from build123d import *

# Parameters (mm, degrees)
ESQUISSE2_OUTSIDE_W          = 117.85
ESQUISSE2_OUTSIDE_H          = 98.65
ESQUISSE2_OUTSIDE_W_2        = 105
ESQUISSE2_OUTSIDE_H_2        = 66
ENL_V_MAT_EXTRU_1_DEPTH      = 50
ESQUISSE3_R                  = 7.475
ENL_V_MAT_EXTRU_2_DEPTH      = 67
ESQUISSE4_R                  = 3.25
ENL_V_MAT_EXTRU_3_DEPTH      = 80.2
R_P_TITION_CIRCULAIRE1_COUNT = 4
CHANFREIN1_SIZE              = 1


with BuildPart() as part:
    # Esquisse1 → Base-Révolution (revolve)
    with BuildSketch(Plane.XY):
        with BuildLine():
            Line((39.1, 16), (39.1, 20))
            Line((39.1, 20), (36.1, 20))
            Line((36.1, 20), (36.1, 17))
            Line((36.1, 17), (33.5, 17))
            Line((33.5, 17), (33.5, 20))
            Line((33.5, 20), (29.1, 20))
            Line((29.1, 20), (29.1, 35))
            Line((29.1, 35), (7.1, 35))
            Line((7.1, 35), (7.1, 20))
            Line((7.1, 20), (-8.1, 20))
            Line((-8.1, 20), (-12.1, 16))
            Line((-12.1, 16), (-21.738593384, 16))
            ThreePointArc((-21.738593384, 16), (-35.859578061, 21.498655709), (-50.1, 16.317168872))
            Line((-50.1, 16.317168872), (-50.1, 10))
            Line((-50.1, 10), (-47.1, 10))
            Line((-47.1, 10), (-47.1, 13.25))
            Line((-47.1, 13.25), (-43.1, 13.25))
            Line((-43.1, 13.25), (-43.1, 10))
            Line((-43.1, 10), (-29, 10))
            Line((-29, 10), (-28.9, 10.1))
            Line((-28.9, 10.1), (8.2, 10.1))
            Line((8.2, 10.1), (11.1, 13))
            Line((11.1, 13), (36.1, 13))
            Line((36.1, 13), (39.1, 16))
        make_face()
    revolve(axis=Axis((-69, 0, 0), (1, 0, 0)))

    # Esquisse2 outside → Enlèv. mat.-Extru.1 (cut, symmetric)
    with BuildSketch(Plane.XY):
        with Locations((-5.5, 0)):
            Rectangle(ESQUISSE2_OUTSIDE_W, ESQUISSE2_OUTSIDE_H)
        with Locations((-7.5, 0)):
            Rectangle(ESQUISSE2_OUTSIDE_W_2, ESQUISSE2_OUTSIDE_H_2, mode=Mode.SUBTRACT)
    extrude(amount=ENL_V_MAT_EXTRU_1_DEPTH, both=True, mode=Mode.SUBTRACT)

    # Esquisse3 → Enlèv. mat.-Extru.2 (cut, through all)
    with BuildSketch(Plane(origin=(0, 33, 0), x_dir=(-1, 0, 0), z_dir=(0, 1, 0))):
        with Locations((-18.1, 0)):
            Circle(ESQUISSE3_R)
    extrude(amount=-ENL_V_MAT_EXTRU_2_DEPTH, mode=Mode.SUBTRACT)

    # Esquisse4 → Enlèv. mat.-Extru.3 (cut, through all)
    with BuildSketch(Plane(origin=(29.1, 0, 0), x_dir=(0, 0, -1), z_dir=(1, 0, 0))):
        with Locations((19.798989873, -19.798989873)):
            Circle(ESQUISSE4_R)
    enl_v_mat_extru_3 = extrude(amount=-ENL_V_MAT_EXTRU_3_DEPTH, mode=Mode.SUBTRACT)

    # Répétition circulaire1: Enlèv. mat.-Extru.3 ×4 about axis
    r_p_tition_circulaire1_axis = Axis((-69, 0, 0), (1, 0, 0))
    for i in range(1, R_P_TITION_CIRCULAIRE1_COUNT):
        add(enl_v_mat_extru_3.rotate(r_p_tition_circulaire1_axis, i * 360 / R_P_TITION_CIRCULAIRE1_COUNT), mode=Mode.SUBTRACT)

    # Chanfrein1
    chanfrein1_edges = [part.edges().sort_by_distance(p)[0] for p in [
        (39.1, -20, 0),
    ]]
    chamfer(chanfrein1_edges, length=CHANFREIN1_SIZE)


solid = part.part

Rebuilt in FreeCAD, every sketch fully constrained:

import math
import FreeCAD as App
import Part
import Sketcher
from FreeCAD import Vector
Q = App.Units.Quantity


def edges_at(feature, points):
    """Names of the edges that pass closest to the given points."""
    edges = feature.Shape.Edges
    near = lambda p: min(range(len(edges)), key=lambda i: edges[i].distToShape(Part.Vertex(*p))[0])
    return sorted({f"Edge{near(p) + 1}" for p in points})

doc = App.newDocument("Part")
body = doc.addObject("PartDesign::Body", "Body")

sketch1 = body.newObject("Sketcher::SketchObject", "Sketch")
sketch1.AttachmentSupport = (doc.getObject("XY_Plane"), [""])
sketch1.MapMode = "FlatFace"
sketch1.addGeometry([
    Part.LineSegment(Vector(39.1, 16, 0), Vector(39.1, 20, 0)),
    Part.LineSegment(Vector(39.1, 20, 0), Vector(36.1, 20, 0)),
    Part.LineSegment(Vector(36.1, 20, 0), Vector(36.1, 17, 0)),
    Part.LineSegment(Vector(36.1, 17, 0), Vector(33.5, 17, 0)),
    Part.LineSegment(Vector(33.5, 17, 0), Vector(33.5, 20, 0)),
    Part.LineSegment(Vector(33.5, 20, 0), Vector(29.1, 20, 0)),
    Part.LineSegment(Vector(29.1, 20, 0), Vector(29.1, 35, 0)),
    Part.LineSegment(Vector(29.1, 35, 0), Vector(7.1, 35, 0)),
    Part.LineSegment(Vector(7.1, 35, 0), Vector(7.1, 20, 0)),
    Part.LineSegment(Vector(7.1, 20, 0), Vector(-8.1, 20, 0)),
    Part.LineSegment(Vector(-8.1, 20, 0), Vector(-12.1, 16, 0)),
    Part.LineSegment(Vector(-12.1, 16, 0), Vector(-21.74, 16, 0)),
    Part.ArcOfCircle(Part.Circle(Vector(-36.1, 0, 0), Vector(0, 0, 1), 21.5), math.radians(48), math.radians(131)),
    Part.LineSegment(Vector(-50.1, 16.32, 0), Vector(-50.1, 10, 0)),
    Part.LineSegment(Vector(-50.1, 10, 0), Vector(-47.1, 10, 0)),
    Part.LineSegment(Vector(-47.1, 10, 0), Vector(-47.1, 13.25, 0)),
    Part.LineSegment(Vector(-47.1, 13.25, 0), Vector(-43.1, 13.25, 0)),
    Part.LineSegment(Vector(-43.1, 13.25, 0), Vector(-43.1, 10, 0)),
    Part.LineSegment(Vector(-43.1, 10, 0), Vector(-29, 10, 0)),
    Part.LineSegment(Vector(-29, 10, 0), Vector(-28.9, 10.1, 0)),
    Part.LineSegment(Vector(-28.9, 10.1, 0), Vector(8.2, 10.1, 0)),
    Part.LineSegment(Vector(8.2, 10.1, 0), Vector(11.1, 13, 0)),
    Part.LineSegment(Vector(11.1, 13, 0), Vector(36.1, 13, 0)),
    Part.LineSegment(Vector(36.1, 13, 0), Vector(39.1, 16, 0)),
], False)
sketch1.addConstraint([
    Sketcher.Constraint("Coincident", 0, 2, 1, 1),
    Sketcher.Constraint("Coincident", 1, 2, 2, 1),
    Sketcher.Constraint("Coincident", 2, 2, 3, 1),
    Sketcher.Constraint("Coincident", 3, 2, 4, 1),
    Sketcher.Constraint("Coincident", 4, 2, 5, 1),
    Sketcher.Constraint("Coincident", 5, 2, 6, 1),
    Sketcher.Constraint("Coincident", 6, 2, 7, 1),
    Sketcher.Constraint("Coincident", 7, 2, 8, 1),
    Sketcher.Constraint("Coincident", 8, 2, 9, 1),
    Sketcher.Constraint("Coincident", 9, 2, 10, 1),
    Sketcher.Constraint("Coincident", 10, 2, 11, 1),
    Sketcher.Constraint("Coincident", 11, 2, 12, 1),
    Sketcher.Constraint("Coincident", 12, 2, 13, 1),
    Sketcher.Constraint("Coincident", 13, 2, 14, 1),
    Sketcher.Constraint("Coincident", 14, 2, 15, 1),
    Sketcher.Constraint("Coincident", 15, 2, 16, 1),
    Sketcher.Constraint("Coincident", 16, 2, 17, 1),
    Sketcher.Constraint("Coincident", 17, 2, 18, 1),
    Sketcher.Constraint("Coincident", 18, 2, 19, 1),
    Sketcher.Constraint("Coincident", 19, 2, 20, 1),
    Sketcher.Constraint("Coincident", 20, 2, 21, 1),
    Sketcher.Constraint("Coincident", 21, 2, 22, 1),
    Sketcher.Constraint("Coincident", 22, 2, 23, 1),
    Sketcher.Constraint("Coincident", 23, 2, 0, 1),
    Sketcher.Constraint("Vertical", 0),
    Sketcher.Constraint("Horizontal", 1),
    Sketcher.Constraint("Vertical", 2),
    Sketcher.Constraint("Horizontal", 3),
    Sketcher.Constraint("Vertical", 4),
    Sketcher.Constraint("Horizontal", 5),
    Sketcher.Constraint("Vertical", 6),
    Sketcher.Constraint("Horizontal", 7),
    Sketcher.Constraint("Vertical", 8),
    Sketcher.Constraint("Horizontal", 9),
    Sketcher.Constraint("Horizontal", 11),
    Sketcher.Constraint("Vertical", 13),
    Sketcher.Constraint("Horizontal", 14),
    Sketcher.Constraint("Vertical", 15),
    Sketcher.Constraint("Horizontal", 16),
    Sketcher.Constraint("Vertical", 17),
    Sketcher.Constraint("Horizontal", 18),
    Sketcher.Constraint("Horizontal", 20),
    Sketcher.Constraint("Horizontal", 22),
    Sketcher.Constraint("PointOnObject", 12, 3, -1),
    Sketcher.Constraint("Parallel", 10, 19),
    Sketcher.Constraint("Parallel", 19, 21),
    Sketcher.Constraint("Parallel", 21, 23),
    Sketcher.Constraint("Horizontal", 1, 2, 4, 2),
    Sketcher.Constraint("Horizontal", 5, 2, 8, 2),
    Sketcher.Constraint("Horizontal", 14, 2, 17, 2),
    Sketcher.Constraint("Horizontal", 11, 2, 23, 2),
    Sketcher.Constraint("Vertical", 2, 2, 22, 2),
    Sketcher.Constraint("Equal", 1, 14),
    Sketcher.Constraint("Equal", 16, 0),
    Sketcher.Constraint("Equal", 14, 2),
    Sketcher.Constraint("Radius", 12, 21.5),
    Sketcher.Constraint("DistanceX", 1, 2, 1, 1, 3.0),
    Sketcher.Constraint("DistanceX", 7, 2, 7, 1, 22.0),
    Sketcher.Constraint("DistanceX", 16, 1, 16, 2, 4.0),
    Sketcher.Constraint("DistanceX", 22, 1, 22, 2, 25.0),
    Sketcher.Constraint("DistanceY", 6, 1, 6, 2, 15.0),
    Sketcher.Constraint("Angle", 10, Q("-135 deg")),
    Sketcher.Constraint("DistanceX", 3, 2, 3, 1, 2.6),
    Sketcher.Constraint("DistanceX", 5, 2, 5, 1, 4.4),
    Sketcher.Constraint("DistanceX", 9, 2, 9, 1, 15.2),
    Sketcher.Constraint("DistanceX", 18, 1, 18, 2, 14.1),
    Sketcher.Constraint("DistanceX", 20, 1, 20, 2, 37.1),
    Sketcher.Constraint("DistanceY", -1, 1, 0, 2, 20.0),
    Sketcher.Constraint("DistanceY", -1, 1, 13, 2, 10.0),
    Sketcher.Constraint("DistanceX", 18, 2, -1, 1, 29.0),
    Sketcher.Constraint("DistanceX", 12, 3, 9, 2, 28.0),
    Sketcher.Constraint("DistanceY", 15, 1, 15, 2, 3.25),
    Sketcher.Constraint("DistanceX", 19, 2, -1, 1, 28.9),
])
revolution = body.newObject("PartDesign::Revolution", "Revolution")
revolution.Profile = sketch1
revolution.ReferenceAxis = (sketch1, ["H_Axis"])
revolution.Angle = 360

sketch2 = body.newObject("Sketcher::SketchObject", "Sketch001")
sketch2.AttachmentSupport = (doc.getObject("XY_Plane"), [""])
sketch2.MapMode = "FlatFace"
sketch2.addGeometry([
    Part.LineSegment(Vector(-64, 49, 0), Vector(-64, -49, 0)),
    Part.LineSegment(Vector(-64, -49, 0), Vector(53, -49, 0)),
    Part.LineSegment(Vector(53, -49, 0), Vector(53, 49, 0)),
    Part.LineSegment(Vector(53, 49, 0), Vector(-64, 49, 0)),
    Part.LineSegment(Vector(45, -33, 0), Vector(-60, -33, 0)),
    Part.LineSegment(Vector(-60, -33, 0), Vector(-60, 33, 0)),
    Part.LineSegment(Vector(-60, 33, 0), Vector(45, 33, 0)),
    Part.LineSegment(Vector(45, 33, 0), Vector(45, -33, 0)),
], False)
sketch2.addConstraint([
    Sketcher.Constraint("Coincident", 0, 2, 1, 1),
    Sketcher.Constraint("Coincident", 1, 2, 2, 1),
    Sketcher.Constraint("Coincident", 2, 2, 3, 1),
    Sketcher.Constraint("Coincident", 3, 2, 0, 1),
    Sketcher.Constraint("Coincident", 4, 2, 5, 1),
    Sketcher.Constraint("Coincident", 5, 2, 6, 1),
    Sketcher.Constraint("Coincident", 6, 2, 7, 1),
    Sketcher.Constraint("Coincident", 7, 2, 4, 1),
    Sketcher.Constraint("Vertical", 0),
    Sketcher.Constraint("Horizontal", 1),
    Sketcher.Constraint("Vertical", 2),
    Sketcher.Constraint("Horizontal", 3),
    Sketcher.Constraint("Horizontal", 4),
    Sketcher.Constraint("Vertical", 5),
    Sketcher.Constraint("Horizontal", 6),
    Sketcher.Constraint("Vertical", 7),
    Sketcher.Constraint("DistanceX", 4, 2, 4, 1, 105.0),
    Sketcher.Constraint("DistanceY", 5, 1, 5, 2, 66.0),
    Sketcher.Constraint("DistanceX", 4, 2, -1, 1, 60.0),
    Sketcher.Constraint("DistanceY", 4, 2, -1, 1, 33.0),
    Sketcher.Constraint("DistanceX", 1, 1, 1, 2, 117.85),
    Sketcher.Constraint("DistanceY", 0, 2, 0, 1, 98.65),
    Sketcher.Constraint("DistanceX", 0, 2, -1, 1, 64.425),
    Sketcher.Constraint("DistanceY", 0, 2, -1, 1, 49.325),
])
pocket1 = body.newObject("PartDesign::Pocket", "Pocket")
pocket1.Profile = sketch2
pocket1.Length = 100
pocket1.Midplane = True

sketch3 = body.newObject("Sketcher::SketchObject", "Sketch002")
sketch3.AttachmentSupport = (doc.getObject("XZ_Plane"), [""])
sketch3.MapMode = "FlatFace"
sketch3.AttachmentOffset = App.Placement(Vector(0, 0, -33), App.Rotation())
sketch3.addGeometry(Part.Circle(Vector(18, 0, 0), Vector(0, 0, 1), 7), False)
sketch3.addConstraint([
    Sketcher.Constraint("PointOnObject", 0, 3, -1),
    Sketcher.Constraint("Diameter", 0, 14.95),
    Sketcher.Constraint("DistanceX", -1, 1, 0, 3, 18.1),
])
pocket2 = body.newObject("PartDesign::Pocket", "Pocket001")
pocket2.Profile = sketch3
pocket2.Type = "ThroughAll"
pocket2.Reversed = True

sketch4 = body.newObject("Sketcher::SketchObject", "Sketch003")
sketch4.AttachmentSupport = (doc.getObject("YZ_Plane"), [""])
sketch4.MapMode = "FlatFace"
sketch4.AttachmentOffset = App.Placement(Vector(0, 0, 29.1), App.Rotation())
sketch4.addGeometry(Part.Circle(Vector(-19.8, -19.8, 0), Vector(0, 0, 1), 3.2), False)
sketch4.addConstraint([
    Sketcher.Constraint("Diameter", 0, 6.5),
    Sketcher.Constraint("DistanceX", 0, 3, -1, 1, 19.79899),
    Sketcher.Constraint("DistanceY", 0, 3, -1, 1, 19.79899),
])
pocket3 = body.newObject("PartDesign::Pocket", "Pocket002")
pocket3.Profile = sketch4
pocket3.Type = "ThroughAll"
doc.recompute()

polarpattern = body.newObject("PartDesign::PolarPattern", "PolarPattern")
polarpattern.Originals = [pocket3]
polarpattern.Axis = (doc.getObject("X_Axis"), [""])
polarpattern.Angle = 360
polarpattern.Occurrences = 4
body.Tip = polarpattern
doc.recompute()

chamfer = body.newObject("PartDesign::Chamfer", "Chamfer")
chamfer.Base = (polarpattern, edges_at(polarpattern, [(39.1, -20, 0)]))
chamfer.Size = 1

doc.recompute()
